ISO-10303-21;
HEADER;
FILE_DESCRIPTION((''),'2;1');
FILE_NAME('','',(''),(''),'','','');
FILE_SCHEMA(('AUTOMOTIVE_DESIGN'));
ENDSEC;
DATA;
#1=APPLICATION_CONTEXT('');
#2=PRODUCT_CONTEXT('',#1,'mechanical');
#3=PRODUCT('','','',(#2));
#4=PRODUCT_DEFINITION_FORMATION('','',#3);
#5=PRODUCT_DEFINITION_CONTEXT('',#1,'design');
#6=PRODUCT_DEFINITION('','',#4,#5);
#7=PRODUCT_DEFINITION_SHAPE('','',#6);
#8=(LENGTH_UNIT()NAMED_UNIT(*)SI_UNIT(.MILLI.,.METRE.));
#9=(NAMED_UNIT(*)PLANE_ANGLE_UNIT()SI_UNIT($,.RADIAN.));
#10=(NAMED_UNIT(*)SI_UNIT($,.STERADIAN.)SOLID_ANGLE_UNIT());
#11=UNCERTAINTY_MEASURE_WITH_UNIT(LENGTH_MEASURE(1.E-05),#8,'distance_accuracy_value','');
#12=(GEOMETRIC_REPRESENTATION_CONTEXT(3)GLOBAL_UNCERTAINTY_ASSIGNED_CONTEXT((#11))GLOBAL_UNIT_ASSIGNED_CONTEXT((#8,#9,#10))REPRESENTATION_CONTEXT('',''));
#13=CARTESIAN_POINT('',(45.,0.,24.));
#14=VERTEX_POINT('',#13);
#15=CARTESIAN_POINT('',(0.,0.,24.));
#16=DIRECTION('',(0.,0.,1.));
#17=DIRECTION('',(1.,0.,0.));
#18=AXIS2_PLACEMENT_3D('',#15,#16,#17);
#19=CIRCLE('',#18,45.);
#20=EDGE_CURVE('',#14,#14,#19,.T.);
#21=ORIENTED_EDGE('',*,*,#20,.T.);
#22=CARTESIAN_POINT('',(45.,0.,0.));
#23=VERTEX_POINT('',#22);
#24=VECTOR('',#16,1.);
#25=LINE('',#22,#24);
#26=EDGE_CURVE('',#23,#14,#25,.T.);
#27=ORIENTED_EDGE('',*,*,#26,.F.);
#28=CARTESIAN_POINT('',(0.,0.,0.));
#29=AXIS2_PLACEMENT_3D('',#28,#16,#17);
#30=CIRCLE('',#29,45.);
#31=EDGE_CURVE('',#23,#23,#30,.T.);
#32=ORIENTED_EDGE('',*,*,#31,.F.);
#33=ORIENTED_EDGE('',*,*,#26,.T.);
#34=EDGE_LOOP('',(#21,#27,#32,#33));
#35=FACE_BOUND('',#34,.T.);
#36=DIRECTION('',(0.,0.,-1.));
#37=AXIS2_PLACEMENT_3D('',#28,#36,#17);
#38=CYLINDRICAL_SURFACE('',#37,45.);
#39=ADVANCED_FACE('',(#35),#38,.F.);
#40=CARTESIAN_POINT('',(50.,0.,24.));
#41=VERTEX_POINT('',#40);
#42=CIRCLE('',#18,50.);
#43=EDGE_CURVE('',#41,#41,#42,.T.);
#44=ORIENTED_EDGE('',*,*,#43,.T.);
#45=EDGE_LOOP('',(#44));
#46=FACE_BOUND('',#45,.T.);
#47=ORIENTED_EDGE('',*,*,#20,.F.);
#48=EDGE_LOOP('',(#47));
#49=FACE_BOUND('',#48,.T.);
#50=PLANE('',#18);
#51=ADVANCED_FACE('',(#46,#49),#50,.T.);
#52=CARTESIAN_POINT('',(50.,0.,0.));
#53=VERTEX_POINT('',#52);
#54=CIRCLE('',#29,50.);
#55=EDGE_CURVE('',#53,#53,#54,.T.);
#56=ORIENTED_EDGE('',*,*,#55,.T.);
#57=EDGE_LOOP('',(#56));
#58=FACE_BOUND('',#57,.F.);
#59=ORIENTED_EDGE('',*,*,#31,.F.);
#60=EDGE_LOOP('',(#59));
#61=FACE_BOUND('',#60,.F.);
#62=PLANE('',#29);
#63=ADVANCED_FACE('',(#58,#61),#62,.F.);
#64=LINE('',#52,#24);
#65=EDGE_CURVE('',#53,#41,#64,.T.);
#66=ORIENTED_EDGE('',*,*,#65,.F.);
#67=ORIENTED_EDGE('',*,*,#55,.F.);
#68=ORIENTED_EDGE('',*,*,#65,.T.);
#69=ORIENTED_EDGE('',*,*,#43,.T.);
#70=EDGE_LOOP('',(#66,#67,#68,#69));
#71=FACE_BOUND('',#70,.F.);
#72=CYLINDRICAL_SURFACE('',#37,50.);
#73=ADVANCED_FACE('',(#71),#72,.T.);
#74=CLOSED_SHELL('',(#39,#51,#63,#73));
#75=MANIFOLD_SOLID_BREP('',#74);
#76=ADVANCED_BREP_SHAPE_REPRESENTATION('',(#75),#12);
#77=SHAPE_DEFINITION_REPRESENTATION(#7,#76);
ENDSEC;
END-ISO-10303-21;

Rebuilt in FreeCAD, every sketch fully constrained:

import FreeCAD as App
import Part
import Sketcher

V = App.Vector
Q = App.Units.Quantity

doc = App.newDocument("Part")
body = doc.addObject("PartDesign::Body", "Body")

# Sketch on XY plane
sketch1 = doc.addObject("Sketcher::SketchObject", "Sketch")
body.addObject(sketch1)
sketch1.AttachmentSupport = (doc.XY_Plane, [""])
sketch1.MapMode = "FlatFace"
sketch1.addGeometry(Part.Circle(V(0, 0, 0), V(0, 0, 1), 50), False)
sketch1.addGeometry(Part.Circle(V(0, 0, 0), V(0, 0, 1), 45), False)
sketch1.addConstraint(Sketcher.Constraint("Coincident", 0, 3, -1, 1))
sketch1.addConstraint(Sketcher.Constraint("Coincident", 1, 3, -1, 1))
sketch1.addConstraint(Sketcher.Constraint("Diameter", 0, Q("100 mm")))
sketch1.addConstraint(Sketcher.Constraint("Diameter", 1, Q("90 mm")))
pad1 = doc.addObject("PartDesign::Pad", "Pad")
body.addObject(pad1)
pad1.Profile = sketch1
pad1.Length = 24

doc.recompute()
